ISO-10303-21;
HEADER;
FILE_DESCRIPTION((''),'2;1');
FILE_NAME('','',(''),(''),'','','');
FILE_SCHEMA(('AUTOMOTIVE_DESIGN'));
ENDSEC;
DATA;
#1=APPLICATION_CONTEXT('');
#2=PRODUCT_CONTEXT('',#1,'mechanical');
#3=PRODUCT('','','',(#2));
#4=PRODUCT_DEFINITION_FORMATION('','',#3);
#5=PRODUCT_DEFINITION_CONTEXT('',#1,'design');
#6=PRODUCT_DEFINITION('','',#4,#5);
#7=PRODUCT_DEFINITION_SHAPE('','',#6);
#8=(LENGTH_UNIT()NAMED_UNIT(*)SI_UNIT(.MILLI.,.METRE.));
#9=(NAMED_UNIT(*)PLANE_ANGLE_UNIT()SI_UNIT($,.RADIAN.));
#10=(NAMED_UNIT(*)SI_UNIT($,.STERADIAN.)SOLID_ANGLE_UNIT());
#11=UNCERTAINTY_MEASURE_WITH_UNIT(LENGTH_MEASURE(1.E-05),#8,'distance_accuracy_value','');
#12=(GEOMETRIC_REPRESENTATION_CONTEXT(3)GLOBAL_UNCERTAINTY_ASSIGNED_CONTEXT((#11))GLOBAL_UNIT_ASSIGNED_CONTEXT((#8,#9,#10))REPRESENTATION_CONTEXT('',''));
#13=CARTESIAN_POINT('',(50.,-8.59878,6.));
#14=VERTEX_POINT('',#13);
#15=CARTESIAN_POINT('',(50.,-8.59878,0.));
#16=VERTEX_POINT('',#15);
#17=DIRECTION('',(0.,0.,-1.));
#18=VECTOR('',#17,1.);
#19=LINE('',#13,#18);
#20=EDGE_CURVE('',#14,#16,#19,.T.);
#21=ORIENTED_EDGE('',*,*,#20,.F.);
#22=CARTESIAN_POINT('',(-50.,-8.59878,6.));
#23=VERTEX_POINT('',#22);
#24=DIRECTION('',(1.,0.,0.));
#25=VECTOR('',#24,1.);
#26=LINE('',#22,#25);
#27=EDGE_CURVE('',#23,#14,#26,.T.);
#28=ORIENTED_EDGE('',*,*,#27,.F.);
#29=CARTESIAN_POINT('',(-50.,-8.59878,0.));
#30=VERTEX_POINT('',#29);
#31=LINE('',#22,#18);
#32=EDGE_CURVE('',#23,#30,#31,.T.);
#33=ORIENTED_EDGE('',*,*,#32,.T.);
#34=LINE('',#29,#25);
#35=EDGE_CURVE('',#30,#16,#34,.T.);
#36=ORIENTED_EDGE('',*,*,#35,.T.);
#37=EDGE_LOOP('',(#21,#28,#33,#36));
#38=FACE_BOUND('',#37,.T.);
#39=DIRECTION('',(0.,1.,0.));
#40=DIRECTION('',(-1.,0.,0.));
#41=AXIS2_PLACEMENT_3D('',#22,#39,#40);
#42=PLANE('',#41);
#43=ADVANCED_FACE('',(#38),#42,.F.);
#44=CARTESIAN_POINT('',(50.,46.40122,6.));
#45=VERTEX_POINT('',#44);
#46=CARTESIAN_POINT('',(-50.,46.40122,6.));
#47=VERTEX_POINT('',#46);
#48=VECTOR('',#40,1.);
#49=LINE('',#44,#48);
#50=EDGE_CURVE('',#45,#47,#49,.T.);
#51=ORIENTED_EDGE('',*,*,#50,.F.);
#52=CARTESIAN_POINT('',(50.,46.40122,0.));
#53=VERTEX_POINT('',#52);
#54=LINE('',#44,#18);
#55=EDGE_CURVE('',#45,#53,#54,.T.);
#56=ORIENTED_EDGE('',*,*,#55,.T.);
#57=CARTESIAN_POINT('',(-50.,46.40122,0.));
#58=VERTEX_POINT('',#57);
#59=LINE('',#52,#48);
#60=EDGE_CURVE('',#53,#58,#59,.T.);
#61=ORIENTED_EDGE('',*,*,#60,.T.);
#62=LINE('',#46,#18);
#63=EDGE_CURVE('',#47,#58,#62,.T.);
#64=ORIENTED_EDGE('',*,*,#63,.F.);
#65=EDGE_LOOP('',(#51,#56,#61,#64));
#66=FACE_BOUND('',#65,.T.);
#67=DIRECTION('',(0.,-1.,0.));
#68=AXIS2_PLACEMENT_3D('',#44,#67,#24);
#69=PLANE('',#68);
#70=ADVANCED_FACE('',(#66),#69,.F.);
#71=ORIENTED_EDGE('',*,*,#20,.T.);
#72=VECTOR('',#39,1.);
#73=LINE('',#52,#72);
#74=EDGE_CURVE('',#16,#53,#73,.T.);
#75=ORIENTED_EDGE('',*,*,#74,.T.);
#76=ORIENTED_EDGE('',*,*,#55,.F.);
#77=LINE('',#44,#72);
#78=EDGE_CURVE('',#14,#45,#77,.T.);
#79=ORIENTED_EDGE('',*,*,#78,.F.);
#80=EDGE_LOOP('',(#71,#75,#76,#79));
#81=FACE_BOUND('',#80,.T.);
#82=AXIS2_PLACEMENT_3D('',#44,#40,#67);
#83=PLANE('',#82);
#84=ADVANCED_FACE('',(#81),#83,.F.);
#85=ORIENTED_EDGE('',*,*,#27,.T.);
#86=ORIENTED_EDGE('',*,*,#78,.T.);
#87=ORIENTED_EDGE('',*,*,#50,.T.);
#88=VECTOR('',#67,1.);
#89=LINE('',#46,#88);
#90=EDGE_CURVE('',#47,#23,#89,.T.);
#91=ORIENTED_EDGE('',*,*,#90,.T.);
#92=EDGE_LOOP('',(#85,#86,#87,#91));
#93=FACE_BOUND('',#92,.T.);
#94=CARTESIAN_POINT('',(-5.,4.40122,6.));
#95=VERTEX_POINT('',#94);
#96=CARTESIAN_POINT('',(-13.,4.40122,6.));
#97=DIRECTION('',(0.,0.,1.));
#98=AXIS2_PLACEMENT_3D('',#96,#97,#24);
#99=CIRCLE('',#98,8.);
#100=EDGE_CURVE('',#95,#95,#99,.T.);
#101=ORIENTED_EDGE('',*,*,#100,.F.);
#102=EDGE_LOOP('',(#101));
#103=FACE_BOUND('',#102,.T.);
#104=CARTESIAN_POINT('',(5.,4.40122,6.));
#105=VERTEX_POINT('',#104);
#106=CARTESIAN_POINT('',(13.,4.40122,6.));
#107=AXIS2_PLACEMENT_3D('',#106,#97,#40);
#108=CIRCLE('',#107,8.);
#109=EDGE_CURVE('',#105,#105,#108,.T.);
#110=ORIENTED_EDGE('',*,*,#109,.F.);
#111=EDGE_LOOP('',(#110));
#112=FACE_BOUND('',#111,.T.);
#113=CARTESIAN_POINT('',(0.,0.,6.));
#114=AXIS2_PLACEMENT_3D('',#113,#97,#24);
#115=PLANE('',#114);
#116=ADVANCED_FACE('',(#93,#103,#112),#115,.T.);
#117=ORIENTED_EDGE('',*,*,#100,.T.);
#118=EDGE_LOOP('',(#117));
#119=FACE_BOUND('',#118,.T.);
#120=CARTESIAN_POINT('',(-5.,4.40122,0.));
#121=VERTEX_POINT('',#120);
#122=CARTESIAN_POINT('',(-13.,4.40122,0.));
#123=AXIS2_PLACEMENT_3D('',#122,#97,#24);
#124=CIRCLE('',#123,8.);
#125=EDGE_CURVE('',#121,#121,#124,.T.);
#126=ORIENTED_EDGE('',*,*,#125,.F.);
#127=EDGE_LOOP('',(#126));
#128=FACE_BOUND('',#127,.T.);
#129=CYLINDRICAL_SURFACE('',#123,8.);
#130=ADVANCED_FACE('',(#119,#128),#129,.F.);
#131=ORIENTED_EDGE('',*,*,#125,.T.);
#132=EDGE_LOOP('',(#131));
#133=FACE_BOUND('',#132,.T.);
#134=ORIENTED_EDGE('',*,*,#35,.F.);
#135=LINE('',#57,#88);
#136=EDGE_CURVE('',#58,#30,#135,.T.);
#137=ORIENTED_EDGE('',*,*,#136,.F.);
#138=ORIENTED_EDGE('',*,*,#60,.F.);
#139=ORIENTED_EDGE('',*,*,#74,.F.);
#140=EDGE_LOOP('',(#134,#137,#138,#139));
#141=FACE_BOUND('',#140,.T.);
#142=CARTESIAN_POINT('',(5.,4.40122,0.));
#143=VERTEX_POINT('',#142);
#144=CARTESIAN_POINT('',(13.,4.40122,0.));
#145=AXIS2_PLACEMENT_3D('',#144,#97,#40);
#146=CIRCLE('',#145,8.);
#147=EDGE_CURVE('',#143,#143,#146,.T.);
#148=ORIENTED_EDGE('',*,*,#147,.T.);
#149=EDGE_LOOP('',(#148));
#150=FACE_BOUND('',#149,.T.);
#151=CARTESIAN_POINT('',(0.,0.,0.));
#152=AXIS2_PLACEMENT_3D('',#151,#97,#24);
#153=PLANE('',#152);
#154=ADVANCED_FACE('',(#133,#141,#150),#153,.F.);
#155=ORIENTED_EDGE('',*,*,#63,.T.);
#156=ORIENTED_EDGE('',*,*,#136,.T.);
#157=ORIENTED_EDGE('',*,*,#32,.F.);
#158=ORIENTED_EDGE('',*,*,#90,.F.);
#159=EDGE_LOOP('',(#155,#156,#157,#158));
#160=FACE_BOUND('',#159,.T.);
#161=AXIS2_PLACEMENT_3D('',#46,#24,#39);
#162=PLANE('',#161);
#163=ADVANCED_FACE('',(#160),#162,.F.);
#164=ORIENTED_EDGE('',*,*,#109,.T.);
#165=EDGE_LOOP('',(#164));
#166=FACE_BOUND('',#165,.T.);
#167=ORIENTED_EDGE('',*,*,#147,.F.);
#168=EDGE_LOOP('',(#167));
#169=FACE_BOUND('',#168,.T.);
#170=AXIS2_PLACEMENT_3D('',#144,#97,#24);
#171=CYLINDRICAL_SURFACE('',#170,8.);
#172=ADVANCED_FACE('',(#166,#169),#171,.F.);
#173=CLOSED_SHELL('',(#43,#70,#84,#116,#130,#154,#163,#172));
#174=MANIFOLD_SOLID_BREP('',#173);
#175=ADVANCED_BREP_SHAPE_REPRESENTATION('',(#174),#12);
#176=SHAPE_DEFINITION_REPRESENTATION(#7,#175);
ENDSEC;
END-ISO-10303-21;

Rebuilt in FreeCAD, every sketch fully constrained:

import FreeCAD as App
import Part
import Sketcher

V = App.Vector
Q = App.Units.Quantity


def add_polygon(sketch, points):
    """Adds a closed chain of lines whose ends are joined by coincident constraints."""
    first, n = sketch.GeometryCount, len(points)
    for a, b in zip(points, points[1:] + points[:1]):
        sketch.addGeometry(Part.LineSegment(App.Vector(*a, 0), App.Vector(*b, 0)), False)
    for i in range(n):
        sketch.addConstraint(Sketcher.Constraint("Coincident", first + i, 2, first + (i + 1) % n, 1))

doc = App.newDocument("Part")
params = doc.addObject("Spreadsheet::Sheet", "Params")
for row, (alias, value) in enumerate([
    ("sketch1_width", "100 mm"),
    ("sketch1_height", "55 mm"),
    ("pad1_length", "6 mm"),
    ("sketch2_diameter", "16 mm"),
    ("pocket1_length", "6 mm"),
], start=1):
    params.set(f"A{row}", alias)
    params.set(f"B{row}", "=" + value)
    params.setAlias(f"B{row}", alias)

body = doc.addObject("PartDesign::Body", "Body")

# Sketch on XY plane
sketch1 = body.newObject("Sketcher::SketchObject", "Sketch")
sketch1.AttachmentSupport = (doc.getObject("XY_Plane"), [""])
sketch1.MapMode = "FlatFace"
add_polygon(sketch1, [(-50, 46), (-50, -9), (50, -9), (50, 46)])  # lines 0-3
sketch1.addConstraint([
    Sketcher.Constraint("Vertical", 0),
    Sketcher.Constraint("Horizontal", 1),
    Sketcher.Constraint("Vertical", 2),
    Sketcher.Constraint("Horizontal", 3),
    Sketcher.Constraint("DistanceX", 1, 1, 1, 2, Q("100 mm")),
    Sketcher.Constraint("DistanceY", 0, 2, 0, 1, Q("55 mm")),
    Sketcher.Constraint("DistanceX", 0, 2, -1, 1, Q("50 mm")),
    Sketcher.Constraint("DistanceY", 0, 2, -1, 1, Q("8.59878 mm")),
])
sketch1.setExpression("Constraints[8]", "Params.sketch1_width")
sketch1.setExpression("Constraints[9]", "Params.sketch1_height")
pad1 = body.newObject("PartDesign::Pad", "Pad")
pad1.Profile = sketch1
pad1.setExpression("Length", "Params.pad1_length")

# Sketch on XY plane
sketch2 = body.newObject("Sketcher::SketchObject", "Sketch001")
sketch2.AttachmentSupport = (doc.getObject("XY_Plane"), [""])
sketch2.MapMode = "FlatFace"
sketch2.AttachmentOffset = App.Placement(V(0, 0, 6), App.Rotation())
sketch2.addGeometry([
    Part.Circle(V(-13, 4, 0), V(0, 0, 1), 8),
    Part.Circle(V(13, 4, 0), V(0, 0, 1), 8),
], False)
sketch2.addConstraint([
    Sketcher.Constraint("Equal", 0, 1),
    Sketcher.Constraint("Symmetric", 0, 3, 1, 3, -2),
    Sketcher.Constraint("Diameter", 0, Q("16 mm")),
    Sketcher.Constraint("DistanceX", 0, 3, -1, 1, Q("13 mm")),
    Sketcher.Constraint("DistanceY", -1, 1, 0, 3, Q("4.40122 mm")),
])
sketch2.setExpression("Constraints[2]", "Params.sketch2_diameter")
pocket1 = body.newObject("PartDesign::Pocket", "Pocket")
pocket1.Profile = sketch2
pocket1.setExpression("Length", "Params.pocket1_length")

doc.recompute()
